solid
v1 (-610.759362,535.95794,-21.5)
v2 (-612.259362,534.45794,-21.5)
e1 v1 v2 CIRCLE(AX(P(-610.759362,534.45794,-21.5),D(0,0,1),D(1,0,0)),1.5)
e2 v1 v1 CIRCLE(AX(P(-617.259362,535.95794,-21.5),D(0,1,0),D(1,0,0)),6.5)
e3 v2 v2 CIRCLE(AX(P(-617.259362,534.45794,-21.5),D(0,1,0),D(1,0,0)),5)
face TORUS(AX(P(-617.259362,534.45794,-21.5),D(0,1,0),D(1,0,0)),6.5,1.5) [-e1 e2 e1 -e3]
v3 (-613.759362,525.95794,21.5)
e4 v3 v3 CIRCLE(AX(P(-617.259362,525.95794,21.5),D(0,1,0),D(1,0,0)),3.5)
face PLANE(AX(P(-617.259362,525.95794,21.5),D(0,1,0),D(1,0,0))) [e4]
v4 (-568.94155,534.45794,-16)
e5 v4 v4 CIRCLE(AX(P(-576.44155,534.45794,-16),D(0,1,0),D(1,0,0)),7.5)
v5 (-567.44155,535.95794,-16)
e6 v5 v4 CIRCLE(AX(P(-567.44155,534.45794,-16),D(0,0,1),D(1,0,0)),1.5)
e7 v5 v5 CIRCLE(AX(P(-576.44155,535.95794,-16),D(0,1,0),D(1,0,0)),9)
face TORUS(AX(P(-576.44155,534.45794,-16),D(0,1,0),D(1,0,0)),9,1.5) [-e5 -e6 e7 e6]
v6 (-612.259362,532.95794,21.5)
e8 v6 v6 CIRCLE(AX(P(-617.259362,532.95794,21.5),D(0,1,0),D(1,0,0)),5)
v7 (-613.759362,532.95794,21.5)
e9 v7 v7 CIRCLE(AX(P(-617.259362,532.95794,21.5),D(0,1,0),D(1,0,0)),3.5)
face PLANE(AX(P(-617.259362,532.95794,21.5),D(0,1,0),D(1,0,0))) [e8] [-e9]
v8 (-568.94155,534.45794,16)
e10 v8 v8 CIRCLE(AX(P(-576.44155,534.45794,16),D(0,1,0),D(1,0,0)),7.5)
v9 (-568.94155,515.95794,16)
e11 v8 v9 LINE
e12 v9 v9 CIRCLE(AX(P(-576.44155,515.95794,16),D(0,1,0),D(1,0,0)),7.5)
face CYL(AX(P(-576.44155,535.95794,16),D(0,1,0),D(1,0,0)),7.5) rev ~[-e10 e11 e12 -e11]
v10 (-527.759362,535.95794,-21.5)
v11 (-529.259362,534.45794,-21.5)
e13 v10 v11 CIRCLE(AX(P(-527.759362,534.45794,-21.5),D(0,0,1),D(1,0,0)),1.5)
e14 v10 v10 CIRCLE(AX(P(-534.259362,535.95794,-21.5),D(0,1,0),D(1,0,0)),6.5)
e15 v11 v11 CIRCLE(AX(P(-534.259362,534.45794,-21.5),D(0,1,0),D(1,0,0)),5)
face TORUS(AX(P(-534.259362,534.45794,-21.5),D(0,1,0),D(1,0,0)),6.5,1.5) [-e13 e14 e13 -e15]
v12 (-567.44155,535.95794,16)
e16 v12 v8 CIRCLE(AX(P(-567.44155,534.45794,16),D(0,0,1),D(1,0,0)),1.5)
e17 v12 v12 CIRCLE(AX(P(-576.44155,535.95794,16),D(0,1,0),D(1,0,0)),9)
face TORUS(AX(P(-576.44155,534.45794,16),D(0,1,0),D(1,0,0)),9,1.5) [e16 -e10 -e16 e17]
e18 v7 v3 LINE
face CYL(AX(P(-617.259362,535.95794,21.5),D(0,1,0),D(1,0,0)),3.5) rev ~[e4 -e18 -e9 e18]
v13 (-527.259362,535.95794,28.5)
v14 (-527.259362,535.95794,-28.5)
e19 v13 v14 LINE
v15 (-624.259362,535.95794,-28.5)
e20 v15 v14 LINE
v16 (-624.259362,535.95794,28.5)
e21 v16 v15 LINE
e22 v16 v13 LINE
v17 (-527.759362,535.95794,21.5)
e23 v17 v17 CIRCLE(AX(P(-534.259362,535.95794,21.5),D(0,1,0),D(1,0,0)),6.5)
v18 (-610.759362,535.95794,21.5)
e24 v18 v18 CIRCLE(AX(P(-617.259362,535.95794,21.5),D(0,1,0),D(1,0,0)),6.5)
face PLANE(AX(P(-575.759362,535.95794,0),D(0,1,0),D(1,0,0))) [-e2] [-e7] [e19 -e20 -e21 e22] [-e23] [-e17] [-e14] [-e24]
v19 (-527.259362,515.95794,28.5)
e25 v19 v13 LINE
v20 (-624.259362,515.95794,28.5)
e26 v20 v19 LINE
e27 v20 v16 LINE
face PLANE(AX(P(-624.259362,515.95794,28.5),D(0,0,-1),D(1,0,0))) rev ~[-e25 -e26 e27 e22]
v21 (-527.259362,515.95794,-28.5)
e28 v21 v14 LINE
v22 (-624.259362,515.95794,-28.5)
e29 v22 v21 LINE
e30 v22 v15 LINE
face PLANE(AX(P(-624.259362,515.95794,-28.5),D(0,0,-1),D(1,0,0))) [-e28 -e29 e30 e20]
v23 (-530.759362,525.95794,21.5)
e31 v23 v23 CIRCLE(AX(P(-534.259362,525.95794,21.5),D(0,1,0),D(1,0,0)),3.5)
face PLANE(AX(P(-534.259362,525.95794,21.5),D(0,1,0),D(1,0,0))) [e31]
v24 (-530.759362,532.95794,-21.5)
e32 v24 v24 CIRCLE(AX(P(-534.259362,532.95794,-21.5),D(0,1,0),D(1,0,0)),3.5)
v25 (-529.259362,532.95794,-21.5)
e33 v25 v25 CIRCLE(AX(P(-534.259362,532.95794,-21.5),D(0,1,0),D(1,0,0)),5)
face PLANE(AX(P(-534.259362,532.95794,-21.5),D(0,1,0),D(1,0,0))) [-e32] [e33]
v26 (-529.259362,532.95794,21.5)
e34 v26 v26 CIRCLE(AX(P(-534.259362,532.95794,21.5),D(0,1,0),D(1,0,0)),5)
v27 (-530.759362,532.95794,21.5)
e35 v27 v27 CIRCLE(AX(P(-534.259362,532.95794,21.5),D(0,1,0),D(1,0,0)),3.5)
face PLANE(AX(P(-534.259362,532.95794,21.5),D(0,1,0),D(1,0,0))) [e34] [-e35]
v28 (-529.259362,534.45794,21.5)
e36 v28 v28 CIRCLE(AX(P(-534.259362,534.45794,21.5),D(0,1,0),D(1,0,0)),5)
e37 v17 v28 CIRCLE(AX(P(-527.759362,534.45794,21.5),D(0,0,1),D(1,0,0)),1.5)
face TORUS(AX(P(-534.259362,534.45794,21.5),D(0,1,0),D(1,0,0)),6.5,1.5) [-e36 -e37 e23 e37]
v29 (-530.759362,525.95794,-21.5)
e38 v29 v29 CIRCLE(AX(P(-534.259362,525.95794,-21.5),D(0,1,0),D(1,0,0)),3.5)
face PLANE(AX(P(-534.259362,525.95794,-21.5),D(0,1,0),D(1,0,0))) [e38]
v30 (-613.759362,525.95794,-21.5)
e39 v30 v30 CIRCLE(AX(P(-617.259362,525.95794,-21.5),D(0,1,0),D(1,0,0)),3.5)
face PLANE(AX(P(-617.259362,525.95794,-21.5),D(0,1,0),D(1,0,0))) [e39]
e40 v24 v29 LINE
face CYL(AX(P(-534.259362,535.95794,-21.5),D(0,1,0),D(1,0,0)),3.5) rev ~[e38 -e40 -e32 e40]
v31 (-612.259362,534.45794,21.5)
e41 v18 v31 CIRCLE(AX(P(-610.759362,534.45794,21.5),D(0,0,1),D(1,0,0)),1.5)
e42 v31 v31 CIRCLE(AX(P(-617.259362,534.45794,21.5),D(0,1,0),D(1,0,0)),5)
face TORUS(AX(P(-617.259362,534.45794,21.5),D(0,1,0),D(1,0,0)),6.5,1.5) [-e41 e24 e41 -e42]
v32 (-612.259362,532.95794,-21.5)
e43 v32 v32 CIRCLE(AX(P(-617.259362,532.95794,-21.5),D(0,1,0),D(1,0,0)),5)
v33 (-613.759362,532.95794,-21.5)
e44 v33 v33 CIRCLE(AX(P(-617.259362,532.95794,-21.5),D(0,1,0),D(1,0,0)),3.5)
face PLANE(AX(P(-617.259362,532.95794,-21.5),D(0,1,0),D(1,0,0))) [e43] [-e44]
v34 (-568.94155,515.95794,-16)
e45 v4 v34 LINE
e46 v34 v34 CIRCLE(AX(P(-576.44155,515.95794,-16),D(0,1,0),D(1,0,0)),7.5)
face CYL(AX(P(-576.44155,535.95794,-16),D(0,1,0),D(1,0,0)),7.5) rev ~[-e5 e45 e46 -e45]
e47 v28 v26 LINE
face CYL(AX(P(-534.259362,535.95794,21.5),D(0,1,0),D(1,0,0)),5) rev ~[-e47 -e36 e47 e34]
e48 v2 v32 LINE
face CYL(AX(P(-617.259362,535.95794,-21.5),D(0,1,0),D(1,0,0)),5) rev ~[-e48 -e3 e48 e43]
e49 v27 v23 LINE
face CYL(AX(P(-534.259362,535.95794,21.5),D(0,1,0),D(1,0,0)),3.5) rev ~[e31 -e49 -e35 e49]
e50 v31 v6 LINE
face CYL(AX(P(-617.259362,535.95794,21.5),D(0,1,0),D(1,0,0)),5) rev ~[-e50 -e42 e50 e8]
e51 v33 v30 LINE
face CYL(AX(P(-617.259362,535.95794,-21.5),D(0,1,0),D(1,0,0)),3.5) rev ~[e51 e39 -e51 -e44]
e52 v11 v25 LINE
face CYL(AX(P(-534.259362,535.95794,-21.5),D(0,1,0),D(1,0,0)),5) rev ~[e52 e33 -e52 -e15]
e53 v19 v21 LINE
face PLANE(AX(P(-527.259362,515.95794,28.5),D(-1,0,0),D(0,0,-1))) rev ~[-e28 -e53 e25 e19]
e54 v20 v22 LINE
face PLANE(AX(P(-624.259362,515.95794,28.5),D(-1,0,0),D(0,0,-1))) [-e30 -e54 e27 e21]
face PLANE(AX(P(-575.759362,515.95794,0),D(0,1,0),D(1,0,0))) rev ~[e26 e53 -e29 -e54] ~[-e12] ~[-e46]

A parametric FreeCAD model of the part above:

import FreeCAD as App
import Part
import Sketcher


def edges_at(feature, points):
    """Names of the edges that pass closest to the given points."""
    edges = feature.Shape.Edges
    near = lambda p: min(range(len(edges)), key=lambda i: edges[i].distToShape(Part.Vertex(*p))[0])
    return sorted({f"Edge{near(p) + 1}" for p in points})

doc = App.newDocument("Part")
body = doc.addObject("PartDesign::Body", "Body")

# Sketch on XZ plane
sketch1 = body.newObject("Sketcher::SketchObject", "Sketch")
sketch1.AttachmentSupport = (doc.getObject("XZ_Plane"), [""])
sketch1.MapMode = "FlatFace"
sketch1.AttachmentOffset = App.Placement(App.Vector(0, 0, -515.95794), App.Rotation())
sketch1.addGeometry([
    Part.LineSegment(App.Vector(-624.259362, -28.5, 0), App.Vector(-624.259362, 28.5, 0)),
    Part.LineSegment(App.Vector(-624.259362, 28.5, 0), App.Vector(-527.259362, 28.5, 0)),
    Part.LineSegment(App.Vector(-527.259362, 28.5, 0), App.Vector(-527.259362, -28.5, 0)),
    Part.LineSegment(App.Vector(-527.259362, -28.5, 0), App.Vector(-624.259362, -28.5, 0)),
], False)
sketch1.addConstraint([
    Sketcher.Constraint("Coincident", 0, 2, 1, 1),
    Sketcher.Constraint("Coincident", 1, 2, 2, 1),
    Sketcher.Constraint("Coincident", 2, 2, 3, 1),
    Sketcher.Constraint("Coincident", 3, 2, 0, 1),
    Sketcher.Constraint("Vertical", 0),
    Sketcher.Constraint("Horizontal", 1),
    Sketcher.Constraint("Vertical", 2),
    Sketcher.Constraint("Horizontal", 3),
    Sketcher.Constraint("DistanceX", 1, 1, 1, 2, 97.0),
    Sketcher.Constraint("DistanceY", 0, 1, 0, 2, 57.0),
    Sketcher.Constraint("DistanceY", -1, 1, 0, 2, 28.5),
    Sketcher.Constraint("DistanceX", 0, 2, -1, 1, 624.259362),
])
pad1 = body.newObject("PartDesign::Pad", "Pad")
pad1.Profile = sketch1
pad1.Length = 20
pad1.Reversed = True

# Sketch on XZ plane
sketch2 = body.newObject("Sketcher::SketchObject", "Sketch001")
sketch2.AttachmentSupport = (doc.getObject("XZ_Plane"), [""])
sketch2.MapMode = "FlatFace"
sketch2.AttachmentOffset = App.Placement(App.Vector(0, 0, -535.95794), App.Rotation())
sketch2.addGeometry([
    Part.Circle(App.Vector(-534.259362, -21.5, 0), App.Vector(0, 0, 1), 3.5),
    Part.Circle(App.Vector(-617.259362, -21.5, 0), App.Vector(0, 0, 1), 3.5),
    Part.Circle(App.Vector(-534.259362, 21.5, 0), App.Vector(0, 0, 1), 3.5),
    Part.Circle(App.Vector(-617.259362, 21.5, 0), App.Vector(0, 0, 1), 3.5),
], False)
sketch2.addConstraint([
    Sketcher.Constraint("Equal", 0, 1),
    Sketcher.Constraint("Equal", 1, 2),
    Sketcher.Constraint("Equal", 2, 3),
    Sketcher.Constraint("Symmetric", 0, 3, 2, 3, -1),
    Sketcher.Constraint("Symmetric", 1, 3, 3, 3, -1),
    Sketcher.Constraint("Horizontal", 0, 3, 1, 3),
    Sketcher.Constraint("Diameter", 0, 7.0),
    Sketcher.Constraint("DistanceX", 1, 3, 0, 3, 83.0),
    Sketcher.Constraint("DistanceY", 0, 3, 2, 3, 43.0),
    Sketcher.Constraint("DistanceX", 0, 3, -1, 1, 534.259362),
])
pocket1 = body.newObject("PartDesign::Pocket", "Pocket")
pocket1.Profile = sketch2
pocket1.Length = 10
pocket1.Reversed = True

# Sketch on XZ plane
sketch3 = body.newObject("Sketcher::SketchObject", "Sketch002")
sketch3.AttachmentSupport = (doc.getObject("XZ_Plane"), [""])
sketch3.MapMode = "FlatFace"
sketch3.AttachmentOffset = App.Placement(App.Vector(0, 0, -535.95794), App.Rotation())
sketch3.addGeometry([
    Part.Circle(App.Vector(-534.259362, -21.5, 0), App.Vector(0, 0, 1), 5),
    Part.Circle(App.Vector(-617.259362, -21.5, 0), App.Vector(0, 0, 1), 5),
    Part.Circle(App.Vector(-617.259362, 21.5, 0), App.Vector(0, 0, 1), 5),
    Part.Circle(App.Vector(-534.259362, 21.5, 0), App.Vector(0, 0, 1), 5),
], False)
sketch3.addConstraint([
    Sketcher.Constraint("Equal", 0, 1),
    Sketcher.Constraint("Equal", 1, 2),
    Sketcher.Constraint("Equal", 2, 3),
    Sketcher.Constraint("Symmetric", 1, 3, 2, 3, -1),
    Sketcher.Constraint("Symmetric", 0, 3, 3, 3, -1),
    Sketcher.Constraint("Horizontal", 0, 3, 1, 3),
    Sketcher.Constraint("Diameter", 0, 10.0),
    Sketcher.Constraint("DistanceX", 1, 3, 0, 3, 83.0),
    Sketcher.Constraint("DistanceY", 1, 3, 2, 3, 43.0),
    Sketcher.Constraint("DistanceX", 0, 3, -1, 1, 534.259362),
])
pocket2 = body.newObject("PartDesign::Pocket", "Pocket001")
pocket2.Profile = sketch3
pocket2.Length = 3
pocket2.Reversed = True

# Sketch on XZ plane
sketch4 = body.newObject("Sketcher::SketchObject", "Sketch003")
sketch4.AttachmentSupport = (doc.getObject("XZ_Plane"), [""])
sketch4.MapMode = "FlatFace"
sketch4.AttachmentOffset = App.Placement(App.Vector(0, 0, -535.95794), App.Rotation())
sketch4.addGeometry([
    Part.Circle(App.Vector(-576.44155, -16, 0), App.Vector(0, 0, 1), 7.5),
    Part.Circle(App.Vector(-576.44155, 16, 0), App.Vector(0, 0, 1), 7.5),
], False)
sketch4.addConstraint([
    Sketcher.Constraint("Equal", 0, 1),
    Sketcher.Constraint("Symmetric", 0, 3, 1, 3, -1),
    Sketcher.Constraint("Diameter", 0, 15.0),
    Sketcher.Constraint("DistanceY", 0, 3, -1, 1, 16.0),
    Sketcher.Constraint("DistanceX", 0, 3, -1, 1, 576.44155),
])
pocket3 = body.newObject("PartDesign::Pocket", "Pocket002")
pocket3.Profile = sketch4
pocket3.Type = "ThroughAll"
pocket3.Reversed = True
doc.recompute()

fillet = body.newObject("PartDesign::Fillet", "Fillet")
fillet.Base = (pocket3, edges_at(pocket3, [
    (-539.259, 535.958, 21.5),
    (-622.259, 535.958, 21.5),
    (-622.259, 535.958, -21.5),
    (-539.259, 535.958, -21.5),
    (-583.942, 535.958, -16),
    (-583.942, 535.958, 16),
]))
fillet.Radius = 1.5

doc.recompute()
